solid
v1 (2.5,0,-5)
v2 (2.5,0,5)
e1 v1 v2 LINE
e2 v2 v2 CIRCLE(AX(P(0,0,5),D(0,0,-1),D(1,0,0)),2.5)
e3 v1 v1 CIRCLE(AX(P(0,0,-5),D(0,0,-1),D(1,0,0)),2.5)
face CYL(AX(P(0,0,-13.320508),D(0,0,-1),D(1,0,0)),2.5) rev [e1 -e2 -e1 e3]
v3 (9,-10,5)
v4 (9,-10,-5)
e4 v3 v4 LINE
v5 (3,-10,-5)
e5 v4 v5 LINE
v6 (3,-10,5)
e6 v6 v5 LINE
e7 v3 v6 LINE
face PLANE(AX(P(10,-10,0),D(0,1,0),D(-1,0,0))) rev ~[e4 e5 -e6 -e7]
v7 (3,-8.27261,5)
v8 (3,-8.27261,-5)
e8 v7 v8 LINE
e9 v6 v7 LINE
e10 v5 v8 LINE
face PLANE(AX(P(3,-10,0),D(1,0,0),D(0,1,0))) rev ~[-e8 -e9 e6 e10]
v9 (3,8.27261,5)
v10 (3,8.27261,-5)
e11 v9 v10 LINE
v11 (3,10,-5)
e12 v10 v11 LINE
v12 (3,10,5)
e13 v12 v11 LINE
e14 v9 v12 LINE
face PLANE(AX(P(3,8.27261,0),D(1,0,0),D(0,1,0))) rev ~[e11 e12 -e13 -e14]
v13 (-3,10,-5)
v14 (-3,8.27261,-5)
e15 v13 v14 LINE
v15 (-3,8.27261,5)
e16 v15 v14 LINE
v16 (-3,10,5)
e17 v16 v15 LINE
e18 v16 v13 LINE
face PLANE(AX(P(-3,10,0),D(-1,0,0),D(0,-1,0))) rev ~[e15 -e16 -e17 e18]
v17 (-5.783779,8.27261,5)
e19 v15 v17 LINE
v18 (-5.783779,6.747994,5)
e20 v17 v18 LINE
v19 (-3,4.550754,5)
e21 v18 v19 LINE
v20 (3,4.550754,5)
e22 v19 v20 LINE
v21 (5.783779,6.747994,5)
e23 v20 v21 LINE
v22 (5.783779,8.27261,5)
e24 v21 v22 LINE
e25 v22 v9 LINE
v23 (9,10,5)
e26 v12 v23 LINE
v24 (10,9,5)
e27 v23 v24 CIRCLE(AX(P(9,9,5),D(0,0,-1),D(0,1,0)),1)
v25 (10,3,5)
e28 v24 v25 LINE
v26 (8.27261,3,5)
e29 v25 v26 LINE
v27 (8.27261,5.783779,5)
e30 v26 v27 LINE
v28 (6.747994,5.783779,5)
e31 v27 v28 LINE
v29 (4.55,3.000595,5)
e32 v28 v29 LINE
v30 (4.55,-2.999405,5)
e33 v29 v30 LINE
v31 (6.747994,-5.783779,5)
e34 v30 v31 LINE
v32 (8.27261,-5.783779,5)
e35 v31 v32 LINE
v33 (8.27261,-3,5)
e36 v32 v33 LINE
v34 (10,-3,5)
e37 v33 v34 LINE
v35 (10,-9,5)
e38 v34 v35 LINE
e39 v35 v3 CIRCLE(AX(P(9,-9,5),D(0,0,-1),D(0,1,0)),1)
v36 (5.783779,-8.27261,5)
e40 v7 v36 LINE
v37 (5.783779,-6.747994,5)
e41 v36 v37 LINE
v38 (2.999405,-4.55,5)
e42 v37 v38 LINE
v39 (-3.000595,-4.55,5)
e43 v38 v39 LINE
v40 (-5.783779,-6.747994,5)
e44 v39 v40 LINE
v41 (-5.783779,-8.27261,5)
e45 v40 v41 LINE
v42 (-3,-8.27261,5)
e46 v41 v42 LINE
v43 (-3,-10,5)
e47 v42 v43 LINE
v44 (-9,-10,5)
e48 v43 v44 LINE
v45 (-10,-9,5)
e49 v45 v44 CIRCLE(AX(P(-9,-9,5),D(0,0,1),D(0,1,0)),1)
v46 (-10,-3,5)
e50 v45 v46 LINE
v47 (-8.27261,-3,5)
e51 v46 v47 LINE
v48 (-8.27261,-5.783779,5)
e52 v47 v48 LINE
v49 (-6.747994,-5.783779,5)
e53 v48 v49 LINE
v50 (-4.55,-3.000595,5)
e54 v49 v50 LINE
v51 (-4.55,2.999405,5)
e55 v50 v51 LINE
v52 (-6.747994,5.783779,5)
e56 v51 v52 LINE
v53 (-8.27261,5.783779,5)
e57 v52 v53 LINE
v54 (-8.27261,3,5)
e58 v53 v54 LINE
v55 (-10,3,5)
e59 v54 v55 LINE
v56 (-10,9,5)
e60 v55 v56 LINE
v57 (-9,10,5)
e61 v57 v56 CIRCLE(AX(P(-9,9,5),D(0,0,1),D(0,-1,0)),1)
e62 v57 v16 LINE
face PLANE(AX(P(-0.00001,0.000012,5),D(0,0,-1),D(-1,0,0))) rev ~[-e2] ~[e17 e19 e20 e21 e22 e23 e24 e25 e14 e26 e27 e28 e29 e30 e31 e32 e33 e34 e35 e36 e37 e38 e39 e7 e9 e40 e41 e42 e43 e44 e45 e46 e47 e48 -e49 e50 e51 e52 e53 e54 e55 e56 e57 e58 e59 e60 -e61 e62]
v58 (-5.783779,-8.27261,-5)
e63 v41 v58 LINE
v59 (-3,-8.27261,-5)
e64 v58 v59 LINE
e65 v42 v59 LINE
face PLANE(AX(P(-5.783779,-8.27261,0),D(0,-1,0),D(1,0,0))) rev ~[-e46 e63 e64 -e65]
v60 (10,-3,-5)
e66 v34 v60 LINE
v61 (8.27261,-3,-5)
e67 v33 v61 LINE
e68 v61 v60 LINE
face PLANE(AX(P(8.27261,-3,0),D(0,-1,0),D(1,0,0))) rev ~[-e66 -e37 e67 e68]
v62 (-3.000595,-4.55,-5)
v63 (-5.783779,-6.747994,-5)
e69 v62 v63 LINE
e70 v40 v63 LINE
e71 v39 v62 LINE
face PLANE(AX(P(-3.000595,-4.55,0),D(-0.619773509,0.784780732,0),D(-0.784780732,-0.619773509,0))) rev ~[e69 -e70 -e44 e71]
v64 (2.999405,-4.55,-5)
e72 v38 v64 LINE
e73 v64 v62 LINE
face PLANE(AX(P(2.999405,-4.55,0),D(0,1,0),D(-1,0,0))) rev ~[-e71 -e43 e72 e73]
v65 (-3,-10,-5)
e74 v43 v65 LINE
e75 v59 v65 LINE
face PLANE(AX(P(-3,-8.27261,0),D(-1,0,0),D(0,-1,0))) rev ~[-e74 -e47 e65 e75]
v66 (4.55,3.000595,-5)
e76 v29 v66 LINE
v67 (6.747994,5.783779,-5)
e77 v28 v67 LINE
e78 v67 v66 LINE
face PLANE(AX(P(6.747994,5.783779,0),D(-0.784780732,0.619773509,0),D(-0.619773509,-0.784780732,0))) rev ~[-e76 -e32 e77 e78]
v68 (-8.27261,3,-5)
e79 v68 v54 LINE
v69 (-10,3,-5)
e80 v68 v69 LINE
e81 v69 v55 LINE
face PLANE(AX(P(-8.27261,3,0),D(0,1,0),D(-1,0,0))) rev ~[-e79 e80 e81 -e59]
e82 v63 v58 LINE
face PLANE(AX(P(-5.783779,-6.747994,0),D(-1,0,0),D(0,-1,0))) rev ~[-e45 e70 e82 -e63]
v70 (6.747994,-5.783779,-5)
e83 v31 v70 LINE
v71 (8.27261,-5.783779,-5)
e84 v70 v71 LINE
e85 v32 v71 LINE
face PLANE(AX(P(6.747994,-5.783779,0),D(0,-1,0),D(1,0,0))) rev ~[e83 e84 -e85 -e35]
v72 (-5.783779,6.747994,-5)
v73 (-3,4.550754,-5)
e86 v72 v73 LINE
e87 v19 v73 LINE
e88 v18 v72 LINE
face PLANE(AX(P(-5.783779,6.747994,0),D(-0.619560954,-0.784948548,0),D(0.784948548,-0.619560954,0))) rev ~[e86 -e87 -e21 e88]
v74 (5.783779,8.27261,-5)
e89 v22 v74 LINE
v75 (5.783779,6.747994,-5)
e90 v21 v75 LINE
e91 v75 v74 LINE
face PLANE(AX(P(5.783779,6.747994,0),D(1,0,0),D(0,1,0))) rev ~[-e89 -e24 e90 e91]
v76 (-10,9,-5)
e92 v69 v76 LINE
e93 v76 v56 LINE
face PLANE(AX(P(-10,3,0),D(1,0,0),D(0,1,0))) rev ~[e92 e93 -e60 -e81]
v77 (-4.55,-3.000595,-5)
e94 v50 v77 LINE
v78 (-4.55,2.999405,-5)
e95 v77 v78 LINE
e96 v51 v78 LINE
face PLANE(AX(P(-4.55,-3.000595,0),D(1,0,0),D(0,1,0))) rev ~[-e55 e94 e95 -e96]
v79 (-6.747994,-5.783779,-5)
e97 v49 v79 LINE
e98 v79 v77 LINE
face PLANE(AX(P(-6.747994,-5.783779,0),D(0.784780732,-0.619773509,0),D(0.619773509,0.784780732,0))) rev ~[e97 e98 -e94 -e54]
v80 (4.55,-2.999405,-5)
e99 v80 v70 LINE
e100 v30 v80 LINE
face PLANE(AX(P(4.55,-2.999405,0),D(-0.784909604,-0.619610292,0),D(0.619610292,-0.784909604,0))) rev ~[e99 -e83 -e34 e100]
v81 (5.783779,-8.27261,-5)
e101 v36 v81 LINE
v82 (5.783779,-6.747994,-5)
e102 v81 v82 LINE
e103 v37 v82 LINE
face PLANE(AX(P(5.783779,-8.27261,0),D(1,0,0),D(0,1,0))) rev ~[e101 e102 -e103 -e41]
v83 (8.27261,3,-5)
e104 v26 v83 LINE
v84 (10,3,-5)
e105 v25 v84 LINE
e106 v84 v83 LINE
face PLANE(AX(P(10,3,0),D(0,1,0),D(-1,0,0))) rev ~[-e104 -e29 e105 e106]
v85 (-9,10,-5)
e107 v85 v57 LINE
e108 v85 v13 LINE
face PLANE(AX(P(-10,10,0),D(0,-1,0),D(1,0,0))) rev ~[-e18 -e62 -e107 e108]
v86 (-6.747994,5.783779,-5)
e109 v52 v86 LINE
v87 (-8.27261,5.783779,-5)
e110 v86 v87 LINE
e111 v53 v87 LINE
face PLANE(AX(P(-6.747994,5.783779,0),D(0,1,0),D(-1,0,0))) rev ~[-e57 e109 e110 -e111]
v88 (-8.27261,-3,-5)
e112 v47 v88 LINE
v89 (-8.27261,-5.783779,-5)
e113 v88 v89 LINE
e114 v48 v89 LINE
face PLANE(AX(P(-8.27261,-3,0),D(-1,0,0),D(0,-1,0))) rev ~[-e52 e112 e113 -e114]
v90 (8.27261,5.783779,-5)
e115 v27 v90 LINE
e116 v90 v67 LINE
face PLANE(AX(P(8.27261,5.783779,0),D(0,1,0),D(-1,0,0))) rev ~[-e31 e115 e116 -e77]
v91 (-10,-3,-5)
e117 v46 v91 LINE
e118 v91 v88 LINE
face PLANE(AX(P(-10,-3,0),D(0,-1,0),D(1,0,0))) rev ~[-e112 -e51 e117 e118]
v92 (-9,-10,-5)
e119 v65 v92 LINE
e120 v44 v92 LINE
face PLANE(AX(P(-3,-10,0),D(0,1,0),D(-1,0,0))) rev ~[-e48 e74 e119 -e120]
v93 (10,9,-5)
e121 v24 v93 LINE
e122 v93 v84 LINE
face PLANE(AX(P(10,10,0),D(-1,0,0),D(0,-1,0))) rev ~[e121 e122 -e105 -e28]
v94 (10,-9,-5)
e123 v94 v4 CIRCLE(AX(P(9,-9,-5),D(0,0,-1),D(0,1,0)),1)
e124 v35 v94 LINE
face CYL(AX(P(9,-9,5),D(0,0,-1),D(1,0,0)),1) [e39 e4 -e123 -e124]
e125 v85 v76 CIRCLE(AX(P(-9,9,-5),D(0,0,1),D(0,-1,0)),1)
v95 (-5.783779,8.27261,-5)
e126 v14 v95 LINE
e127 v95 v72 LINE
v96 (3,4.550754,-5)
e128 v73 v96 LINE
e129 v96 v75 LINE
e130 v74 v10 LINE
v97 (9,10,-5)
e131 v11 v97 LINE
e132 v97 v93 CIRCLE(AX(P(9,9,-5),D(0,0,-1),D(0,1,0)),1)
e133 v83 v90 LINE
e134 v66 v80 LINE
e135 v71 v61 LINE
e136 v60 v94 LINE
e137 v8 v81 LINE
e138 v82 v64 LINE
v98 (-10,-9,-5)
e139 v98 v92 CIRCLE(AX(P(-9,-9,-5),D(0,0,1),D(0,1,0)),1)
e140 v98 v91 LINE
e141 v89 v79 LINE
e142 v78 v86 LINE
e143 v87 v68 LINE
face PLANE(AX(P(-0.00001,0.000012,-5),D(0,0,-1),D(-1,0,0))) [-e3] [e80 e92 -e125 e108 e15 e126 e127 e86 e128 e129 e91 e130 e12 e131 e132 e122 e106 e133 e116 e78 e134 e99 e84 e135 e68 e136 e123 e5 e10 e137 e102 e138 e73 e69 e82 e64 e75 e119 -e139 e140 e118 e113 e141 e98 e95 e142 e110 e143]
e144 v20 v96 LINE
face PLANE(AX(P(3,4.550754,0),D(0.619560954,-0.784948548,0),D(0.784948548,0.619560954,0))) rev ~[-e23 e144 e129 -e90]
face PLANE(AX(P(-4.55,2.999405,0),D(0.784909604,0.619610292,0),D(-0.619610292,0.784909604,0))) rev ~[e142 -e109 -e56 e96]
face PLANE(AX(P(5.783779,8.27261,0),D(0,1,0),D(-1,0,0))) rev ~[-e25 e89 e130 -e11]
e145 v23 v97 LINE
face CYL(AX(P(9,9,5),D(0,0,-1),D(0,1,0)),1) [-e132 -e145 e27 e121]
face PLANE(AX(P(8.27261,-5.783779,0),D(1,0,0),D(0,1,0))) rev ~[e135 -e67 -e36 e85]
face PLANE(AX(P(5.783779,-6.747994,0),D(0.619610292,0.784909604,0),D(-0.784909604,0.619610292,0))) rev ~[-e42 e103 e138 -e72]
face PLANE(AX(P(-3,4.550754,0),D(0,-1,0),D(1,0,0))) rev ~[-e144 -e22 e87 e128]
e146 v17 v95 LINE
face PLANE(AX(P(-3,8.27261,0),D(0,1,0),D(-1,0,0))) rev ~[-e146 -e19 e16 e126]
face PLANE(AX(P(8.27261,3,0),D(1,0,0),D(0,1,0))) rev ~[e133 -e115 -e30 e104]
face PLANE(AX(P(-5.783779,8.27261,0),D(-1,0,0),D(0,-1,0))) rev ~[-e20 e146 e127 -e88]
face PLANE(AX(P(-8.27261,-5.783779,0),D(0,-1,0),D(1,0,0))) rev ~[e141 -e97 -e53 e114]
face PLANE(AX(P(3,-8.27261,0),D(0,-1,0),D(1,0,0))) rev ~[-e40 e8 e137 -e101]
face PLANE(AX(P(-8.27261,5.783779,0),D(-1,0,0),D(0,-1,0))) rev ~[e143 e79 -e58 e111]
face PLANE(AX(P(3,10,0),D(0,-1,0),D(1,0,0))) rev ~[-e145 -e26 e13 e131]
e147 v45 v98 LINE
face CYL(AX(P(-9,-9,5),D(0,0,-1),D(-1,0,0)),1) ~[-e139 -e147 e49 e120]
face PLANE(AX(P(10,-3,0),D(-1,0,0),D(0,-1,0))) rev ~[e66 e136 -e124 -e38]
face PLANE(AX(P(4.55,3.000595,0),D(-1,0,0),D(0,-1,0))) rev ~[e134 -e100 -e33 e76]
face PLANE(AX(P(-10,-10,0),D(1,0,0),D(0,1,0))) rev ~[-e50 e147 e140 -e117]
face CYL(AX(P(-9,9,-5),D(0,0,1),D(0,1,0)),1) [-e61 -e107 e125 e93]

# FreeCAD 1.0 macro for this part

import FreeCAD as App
import Part
import Sketcher
from FreeCAD import Vector


def edges_at(feature, points):
    """Names of the edges that pass closest to the given points."""
    edges = feature.Shape.Edges
    near = lambda p: min(range(len(edges)), key=lambda i: edges[i].distToShape(Part.Vertex(*p))[0])
    return sorted({f"Edge{near(p) + 1}" for p in points})


def add_polygon(sketch, points):
    """Adds a closed chain of lines whose ends are joined by coincident constraints."""
    first, n = sketch.GeometryCount, len(points)
    for a, b in zip(points, points[1:] + points[:1]):
        sketch.addGeometry(Part.LineSegment(App.Vector(*a, 0), App.Vector(*b, 0)), False)
    for i in range(n):
        sketch.addConstraint(Sketcher.Constraint("Coincident", first + i, 2, first + (i + 1) % n, 1))

doc = App.newDocument("Part")
body = doc.addObject("PartDesign::Body", "Body")

# Sketch on XY plane
sketch1 = doc.addObject("Sketcher::SketchObject", "Sketch")
body.addObject(sketch1)
sketch1.AttachmentSupport = (doc.XY_Plane, [""])
sketch1.MapMode = "FlatFace"
add_polygon(sketch1, [(-3, 10), (-10, 10), (-10, 3), (-8.3, 3), (-8.3, 5.8), (-6.7, 5.8), (-4.5, 3), (-4.5, -3), (-6.7, -5.8), (-8.3, -5.8), (-8.3, -3), (-10, -3), (-10, -10), (-3, -10), (-3, -8.3), (-5.8, -8.3), (-5.8, -6.7), (-3, -4.5), (3, -4.5), (5.8, -6.7), (5.8, -8.3), (3, -8.3), (3, -10), (10, -10), (10, -3), (8.3, -3), (8.3, -5.8), (6.7, -5.8), (4.5, -3), (4.5, 3), (6.7, 5.8), (8.3, 5.8), (8.3, 3), (10, 3), (10, 10), (3, 10), (3, 8.3), (5.8, 8.3), (5.8, 6.7), (3, 4.6), (-3, 4.6), (-5.8, 6.7), (-5.8, 8.3), (-3, 8.3)])  # lines 0-43
sketch1.addConstraint([
    Sketcher.Constraint("Horizontal", 0),
    Sketcher.Constraint("Vertical", 1),
    Sketcher.Constraint("Horizontal", 2),
    Sketcher.Constraint("Vertical", 3),
    Sketcher.Constraint("Horizontal", 4),
    Sketcher.Constraint("Vertical", 6),
    Sketcher.Constraint("Horizontal", 8),
    Sketcher.Constraint("Vertical", 9),
    Sketcher.Constraint("Horizontal", 10),
    Sketcher.Constraint("Vertical", 11),
    Sketcher.Constraint("Horizontal", 12),
    Sketcher.Constraint("Vertical", 13),
    Sketcher.Constraint("Horizontal", 14),
    Sketcher.Constraint("Vertical", 15),
    Sketcher.Constraint("Horizontal", 17),
    Sketcher.Constraint("Vertical", 19),
    Sketcher.Constraint("Horizontal", 20),
    Sketcher.Constraint("Vertical", 21),
    Sketcher.Constraint("Horizontal", 22),
    Sketcher.Constraint("Vertical", 23),
    Sketcher.Constraint("Horizontal", 24),
    Sketcher.Constraint("Vertical", 25),
    Sketcher.Constraint("Horizontal", 26),
    Sketcher.Constraint("Vertical", 28),
    Sketcher.Constraint("Horizontal", 30),
    Sketcher.Constraint("Vertical", 31),
    Sketcher.Constraint("Horizontal", 32),
    Sketcher.Constraint("Vertical", 33),
    Sketcher.Constraint("Horizontal", 34),
    Sketcher.Constraint("Vertical", 35),
    Sketcher.Constraint("Horizontal", 36),
    Sketcher.Constraint("Vertical", 37),
    Sketcher.Constraint("Horizontal", 39),
    Sketcher.Constraint("Vertical", 41),
    Sketcher.Constraint("Horizontal", 42),
    Sketcher.Constraint("Vertical", 43),
    Sketcher.Constraint("Symmetric", 0, 2, 22, 2, -1, 1),
    Sketcher.Constraint("Symmetric", 2, 2, 24, 2, -1, 1),
    Sketcher.Constraint("Symmetric", 4, 2, 26, 2, -1, 1),
    Sketcher.Constraint("Symmetric", 5, 2, 27, 2, -1, 1),
    Sketcher.Constraint("Symmetric", 7, 2, 29, 2, -1, 1),
    Sketcher.Constraint("Symmetric", 9, 2, 31, 2, -1, 1),
    Sketcher.Constraint("Symmetric", 11, 2, 33, 2, -1, 1),
    Sketcher.Constraint("Symmetric", 13, 2, 35, 2, -1, 1),
    Sketcher.Constraint("Symmetric", 15, 2, 37, 2, -1, 1),
    Sketcher.Constraint("Symmetric", 18, 2, 40, 2, -1, 1),
    Sketcher.Constraint("Symmetric", 20, 2, 42, 2, -1, 1),
    Sketcher.Constraint("Symmetric", 15, 2, 18, 2, -2),
    Sketcher.Constraint("Symmetric", 13, 2, 20, 2, -2),
    Sketcher.Constraint("Symmetric", 11, 2, 22, 2, -2),
    Sketcher.Constraint("Symmetric", 9, 2, 24, 2, -2),
    Sketcher.Constraint("Symmetric", 7, 2, 26, 2, -2),
    Sketcher.Constraint("Parallel", 7, 29),
    Sketcher.Constraint("Vertical", 35, 2, 38, 2),
    Sketcher.Constraint("Vertical", 13, 2, 39, 2),
    Sketcher.Constraint("Equal", 17, 39),
    Sketcher.Constraint("Equal", 34, 1),
    Sketcher.Constraint("Equal", 42, 3),
    Sketcher.Constraint("Equal", 39, 6),
    Sketcher.Constraint("Equal", 32, 13),
    Sketcher.Constraint("Equal", 30, 15),
    Sketcher.Constraint("Equal", 7, 16),
    Sketcher.Constraint("Equal", 5, 18),
    Sketcher.Constraint("Equal", 29, 38),
    Sketcher.Constraint("DistanceX", 0, 2, 0, 1, 7.0),
    Sketcher.Constraint("DistanceX", 17, 1, 17, 2, 6.0),
    Sketcher.Constraint("DistanceY", -1, 1, 0, 2, 10.0),
    Sketcher.Constraint("DistanceX", 5, 2, -1, 1, 4.55),
    Sketcher.Constraint("DistanceX", 2, 1, 2, 2, 1.72739),
    Sketcher.Constraint("DistanceX", 14, 2, 14, 1, 2.783779),
    Sketcher.Constraint("DistanceY", 15, 2, 6, 2, 3.747399),
    Sketcher.Constraint("Distance", 5, 3.547382),
])
pad1 = doc.addObject("PartDesign::Pad", "Pad")
body.addObject(pad1)
pad1.Profile = sketch1
pad1.Length = 10
pad1.Midplane = True

# Sketch on XY plane
sketch2 = doc.addObject("Sketcher::SketchObject", "Sketch001")
body.addObject(sketch2)
sketch2.AttachmentSupport = (doc.XY_Plane, [""])
sketch2.MapMode = "FlatFace"
sketch2.AttachmentOffset = App.Placement(Vector(0, 0, 5), App.Rotation())
sketch2.addGeometry(Part.Circle(Vector(0, 0, 0), Vector(0, 0, 1), 2.5), False)
sketch2.addConstraint([
    Sketcher.Constraint("Coincident", 0, 3, -1, 1),
    Sketcher.Constraint("Diameter", 0, 5.0),
])
pocket1 = doc.addObject("PartDesign::Pocket", "Pocket")
body.addObject(pocket1)
pocket1.Profile = sketch2
pocket1.Type = "ThroughAll"
pocket1.Midplane = True
doc.recompute()

fillet = doc.addObject("PartDesign::Fillet", "Fillet")
body.addObject(fillet)
fillet.Base = (pocket1, edges_at(pocket1, [
    (-10, 10, 0),
    (10, 10, 0),
    (10, -10, 0),
    (-10, -10, 0),
]))
fillet.Radius = 1

doc.recompute()
